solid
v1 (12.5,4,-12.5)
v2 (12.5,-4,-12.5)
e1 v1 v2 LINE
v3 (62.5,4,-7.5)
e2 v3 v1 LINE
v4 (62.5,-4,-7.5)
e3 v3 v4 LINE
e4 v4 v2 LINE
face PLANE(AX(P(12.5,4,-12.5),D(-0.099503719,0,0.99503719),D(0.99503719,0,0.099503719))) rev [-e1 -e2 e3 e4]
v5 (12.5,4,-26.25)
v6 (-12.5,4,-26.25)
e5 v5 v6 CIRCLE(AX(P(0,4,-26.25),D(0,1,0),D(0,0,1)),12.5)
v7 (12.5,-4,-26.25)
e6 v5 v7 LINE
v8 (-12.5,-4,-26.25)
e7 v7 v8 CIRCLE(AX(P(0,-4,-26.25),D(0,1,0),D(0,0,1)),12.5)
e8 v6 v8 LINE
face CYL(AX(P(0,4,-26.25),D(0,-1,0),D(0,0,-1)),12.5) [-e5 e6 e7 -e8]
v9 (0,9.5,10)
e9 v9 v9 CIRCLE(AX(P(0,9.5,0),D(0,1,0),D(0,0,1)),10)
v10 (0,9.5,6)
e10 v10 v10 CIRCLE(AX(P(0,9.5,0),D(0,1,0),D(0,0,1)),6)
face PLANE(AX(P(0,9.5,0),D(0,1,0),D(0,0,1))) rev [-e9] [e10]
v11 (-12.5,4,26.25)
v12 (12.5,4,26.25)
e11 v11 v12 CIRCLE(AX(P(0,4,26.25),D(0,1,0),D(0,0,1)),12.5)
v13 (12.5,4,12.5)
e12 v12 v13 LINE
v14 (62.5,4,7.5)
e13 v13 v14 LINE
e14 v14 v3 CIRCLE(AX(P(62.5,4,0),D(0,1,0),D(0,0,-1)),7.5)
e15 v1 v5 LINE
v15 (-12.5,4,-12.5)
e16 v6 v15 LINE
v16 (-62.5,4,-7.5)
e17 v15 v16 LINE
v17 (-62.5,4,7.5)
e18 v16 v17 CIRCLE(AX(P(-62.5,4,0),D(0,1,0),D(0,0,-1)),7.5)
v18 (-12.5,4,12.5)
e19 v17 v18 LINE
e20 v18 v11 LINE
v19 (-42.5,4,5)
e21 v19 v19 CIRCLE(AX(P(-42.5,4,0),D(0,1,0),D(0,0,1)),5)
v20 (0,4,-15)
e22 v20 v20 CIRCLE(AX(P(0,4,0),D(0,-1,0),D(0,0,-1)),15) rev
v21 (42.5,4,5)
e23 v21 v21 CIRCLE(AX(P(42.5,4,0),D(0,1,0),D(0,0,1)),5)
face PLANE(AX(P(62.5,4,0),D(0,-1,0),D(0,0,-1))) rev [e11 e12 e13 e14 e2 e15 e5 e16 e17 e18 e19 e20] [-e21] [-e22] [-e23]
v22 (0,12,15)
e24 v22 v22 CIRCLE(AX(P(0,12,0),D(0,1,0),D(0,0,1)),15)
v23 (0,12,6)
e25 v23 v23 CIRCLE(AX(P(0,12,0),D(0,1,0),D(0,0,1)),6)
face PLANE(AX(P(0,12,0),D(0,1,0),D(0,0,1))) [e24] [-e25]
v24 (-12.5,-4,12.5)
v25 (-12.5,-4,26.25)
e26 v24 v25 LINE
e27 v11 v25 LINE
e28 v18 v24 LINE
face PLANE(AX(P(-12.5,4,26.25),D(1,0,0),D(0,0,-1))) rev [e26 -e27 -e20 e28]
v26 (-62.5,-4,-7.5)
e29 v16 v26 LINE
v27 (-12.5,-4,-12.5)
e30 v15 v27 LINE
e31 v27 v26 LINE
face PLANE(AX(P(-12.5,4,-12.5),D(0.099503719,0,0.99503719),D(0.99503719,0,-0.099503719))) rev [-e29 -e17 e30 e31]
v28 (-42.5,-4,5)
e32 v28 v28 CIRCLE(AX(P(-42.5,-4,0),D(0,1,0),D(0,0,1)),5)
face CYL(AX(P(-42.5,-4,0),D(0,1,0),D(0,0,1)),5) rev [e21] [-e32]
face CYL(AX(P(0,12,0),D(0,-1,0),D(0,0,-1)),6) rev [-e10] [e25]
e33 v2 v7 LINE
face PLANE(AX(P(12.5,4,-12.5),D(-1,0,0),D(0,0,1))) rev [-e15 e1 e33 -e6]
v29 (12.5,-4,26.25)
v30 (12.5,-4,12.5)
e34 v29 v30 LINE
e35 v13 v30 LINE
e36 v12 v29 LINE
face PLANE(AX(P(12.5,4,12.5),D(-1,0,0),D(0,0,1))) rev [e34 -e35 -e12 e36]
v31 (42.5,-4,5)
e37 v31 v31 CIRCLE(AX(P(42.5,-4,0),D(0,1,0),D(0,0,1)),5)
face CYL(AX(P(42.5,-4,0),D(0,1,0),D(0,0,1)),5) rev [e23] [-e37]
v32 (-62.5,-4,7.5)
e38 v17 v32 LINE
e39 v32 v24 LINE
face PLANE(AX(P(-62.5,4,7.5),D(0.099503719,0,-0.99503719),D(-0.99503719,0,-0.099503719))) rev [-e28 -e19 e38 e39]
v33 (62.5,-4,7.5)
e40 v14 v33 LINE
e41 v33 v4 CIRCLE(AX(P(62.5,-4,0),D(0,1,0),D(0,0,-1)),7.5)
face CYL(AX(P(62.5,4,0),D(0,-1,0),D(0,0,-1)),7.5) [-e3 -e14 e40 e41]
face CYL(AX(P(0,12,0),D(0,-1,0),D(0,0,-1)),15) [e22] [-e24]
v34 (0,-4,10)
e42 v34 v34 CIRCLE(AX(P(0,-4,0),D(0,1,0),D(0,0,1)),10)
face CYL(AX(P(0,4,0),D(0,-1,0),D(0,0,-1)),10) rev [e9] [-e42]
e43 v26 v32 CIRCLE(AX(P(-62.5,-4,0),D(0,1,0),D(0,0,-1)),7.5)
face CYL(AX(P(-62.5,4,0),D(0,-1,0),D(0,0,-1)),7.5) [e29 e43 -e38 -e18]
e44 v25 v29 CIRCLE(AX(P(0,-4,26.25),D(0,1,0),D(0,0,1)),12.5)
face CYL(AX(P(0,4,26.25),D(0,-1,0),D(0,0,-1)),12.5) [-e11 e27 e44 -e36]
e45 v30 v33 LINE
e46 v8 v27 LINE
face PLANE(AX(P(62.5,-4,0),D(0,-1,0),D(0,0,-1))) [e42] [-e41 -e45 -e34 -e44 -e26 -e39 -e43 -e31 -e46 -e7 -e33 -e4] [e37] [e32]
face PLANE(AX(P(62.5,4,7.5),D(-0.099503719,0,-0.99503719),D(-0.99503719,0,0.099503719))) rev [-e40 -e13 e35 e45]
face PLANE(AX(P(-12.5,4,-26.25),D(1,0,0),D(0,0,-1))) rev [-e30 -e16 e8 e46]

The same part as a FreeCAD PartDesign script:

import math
import FreeCAD as App
import Part
import Sketcher

doc = App.newDocument("Part")
params = doc.addObject("Spreadsheet::Sheet", "Params")
for row, (alias, value) in enumerate([
    ("sketch1_diameter", "20 mm"),
    ("sketch1_radius", "12.5 mm"),
    ("sketch1_radius2", "7.5 mm"),
    ("sketch1_height", "13.75 mm"),
    ("pad1_length", "8 mm"),
    ("sketch2_diameter", "30 mm"),
    ("sketch2_diameter2", "20 mm"),
    ("pad2_length", "8 mm"),
    ("sketch3_diameter", "10 mm"),
    ("sketch4_diameter", "20 mm"),
    ("sketch4_diameter2", "12 mm"),
    ("pad3_length", "2.5 mm"),
], start=1):
    params.set(f"A{row}", alias)
    params.set(f"B{row}", "=" + value)
    params.setAlias(f"B{row}", alias)

body = doc.addObject("PartDesign::Body", "Body")

# Sketch on XZ plane
sketch1 = doc.addObject("Sketcher::SketchObject", "Sketch")
body.addObject(sketch1)
sketch1.AttachmentSupport = (doc.XZ_Plane, [""])
sketch1.MapMode = "FlatFace"
sketch1.addGeometry(Part.LineSegment(App.Vector(12, -12, 0), App.Vector(12, -26, 0)), False)
sketch1.addGeometry(Part.ArcOfCircle(Part.Circle(App.Vector(0, -26, 0), App.Vector(0, 0, 1), 12), math.radians(180), math.radians(360)), False)
sketch1.addGeometry(Part.LineSegment(App.Vector(-12, -26, 0), App.Vector(-12, -12, 0)), False)
sketch1.addGeometry(Part.LineSegment(App.Vector(-12, -12, 0), App.Vector(-62, -8, 0)), False)
sketch1.addGeometry(Part.ArcOfCircle(Part.Circle(App.Vector(-62, 0, 0), App.Vector(0, 0, 1), 8), math.radians(90), math.radians(270)), False)
sketch1.addGeometry(Part.LineSegment(App.Vector(-62, 8, 0), App.Vector(-12, 12, 0)), False)
sketch1.addGeometry(Part.LineSegment(App.Vector(-12, 12, 0), App.Vector(-12, 26, 0)), False)
sketch1.addGeometry(Part.ArcOfCircle(Part.Circle(App.Vector(0, 26, 0), App.Vector(0, 0, 1), 12), math.radians(0), math.radians(180)), False)
sketch1.addGeometry(Part.LineSegment(App.Vector(12, 26, 0), App.Vector(12, 12, 0)), False)
sketch1.addGeometry(Part.LineSegment(App.Vector(12, 12, 0), App.Vector(62, 8, 0)), False)
sketch1.addGeometry(Part.ArcOfCircle(Part.Circle(App.Vector(62, 0, 0), App.Vector(0, 0, 1), 8), math.radians(-90), math.radians(90)), False)
sketch1.addGeometry(Part.LineSegment(App.Vector(62, -8, 0), App.Vector(12, -12, 0)), False)
sketch1.addGeometry(Part.Circle(App.Vector(0, 0, 0), App.Vector(0, 0, 1), 10), False)
sketch1.addConstraint(Sketcher.Constraint("Tangent", 0, 2, 1, 2))
sketch1.addConstraint(Sketcher.Constraint("Tangent", 1, 1, 2, 1))
sketch1.addConstraint(Sketcher.Constraint("Coincident", 2, 2, 3, 1))
sketch1.addConstraint(Sketcher.Constraint("Coincident", 3, 2, 4, 2))
sketch1.addConstraint(Sketcher.Constraint("Coincident", 4, 1, 5, 1))
sketch1.addConstraint(Sketcher.Constraint("Coincident", 5, 2, 6, 1))
sketch1.addConstraint(Sketcher.Constraint("Tangent", 6, 2, 7, 2))
sketch1.addConstraint(Sketcher.Constraint("Tangent", 7, 1, 8, 1))
sketch1.addConstraint(Sketcher.Constraint("Coincident", 8, 2, 9, 1))
sketch1.addConstraint(Sketcher.Constraint("Coincident", 9, 2, 10, 2))
sketch1.addConstraint(Sketcher.Constraint("Coincident", 10, 1, 11, 1))
sketch1.addConstraint(Sketcher.Constraint("Coincident", 11, 2, 0, 1))
sketch1.addConstraint(Sketcher.Constraint("Vertical", 0))
sketch1.addConstraint(Sketcher.Constraint("Vertical", 2))
sketch1.addConstraint(Sketcher.Constraint("Vertical", 6))
sketch1.addConstraint(Sketcher.Constraint("Vertical", 8))
sketch1.addConstraint(Sketcher.Constraint("Coincident", 12, 3, -1, 1))
sketch1.addConstraint(Sketcher.Constraint("Equal", 1, 7))
sketch1.addConstraint(Sketcher.Constraint("Equal", 4, 10))
sketch1.addConstraint(Sketcher.Constraint("Symmetric", 1, 3, 7, 3, -1, 1))
sketch1.addConstraint(Sketcher.Constraint("Symmetric", 4, 3, 10, 3, -1, 1))
sketch1.addConstraint(Sketcher.Constraint("Symmetric", 5, 2, 8, 2, -2))
sketch1.addConstraint(Sketcher.Constraint("Symmetric", 4, 1, 9, 2, -2))
sketch1.addConstraint(Sketcher.Constraint("Parallel", 3, 9))
sketch1.addConstraint(Sketcher.Constraint("Parallel", 5, 11))
sketch1.addConstraint(Sketcher.Constraint("Horizontal", 2, 2, 11, 2))
sketch1.addConstraint(Sketcher.Constraint("Vertical", 4, 3, 3, 2))
sketch1.addConstraint(Sketcher.Constraint("Vertical", 3, 2, 4, 1))
sketch1.addConstraint(Sketcher.Constraint("Diameter", 12, 20.0))
sketch1.addConstraint(Sketcher.Constraint("Radius", 1, 12.5))
sketch1.addConstraint(Sketcher.Constraint("Radius", 4, 7.5))
sketch1.addConstraint(Sketcher.Constraint("DistanceX", 4, 3, 10, 3, 125.0))
sketch1.addConstraint(Sketcher.Constraint("DistanceY", 2, 2, 3, 2, 5.0))
sketch1.addConstraint(Sketcher.Constraint("DistanceY", 0, 2, 0, 1, 13.75))
sketch1.setExpression("Constraints[28]", "Params.sketch1_diameter")
sketch1.setExpression("Constraints[29]", "Params.sketch1_radius")
sketch1.setExpression("Constraints[30]", "Params.sketch1_radius2")
sketch1.setExpression("Constraints[33]", "Params.sketch1_height")
pad1 = doc.addObject("PartDesign::Pad", "Pad")
body.addObject(pad1)
pad1.Profile = sketch1
pad1.setExpression("Length", "Params.pad1_length")
pad1.Midplane = True

# Sketch on XZ plane
sketch2 = doc.addObject("Sketcher::SketchObject", "Sketch001")
body.addObject(sketch2)
sketch2.AttachmentSupport = (doc.XZ_Plane, [""])
sketch2.MapMode = "FlatFace"
sketch2.AttachmentOffset = App.Placement(App.Vector(0, 0, -4), App.Rotation())
sketch2.addGeometry(Part.Circle(App.Vector(0, 0, 0), App.Vector(0, 0, 1), 15), False)
sketch2.addGeometry(Part.Circle(App.Vector(0, 0, 0), App.Vector(0, 0, 1), 10), False)
sketch2.addConstraint(Sketcher.Constraint("Coincident", 0, 3, -1, 1))
sketch2.addConstraint(Sketcher.Constraint("Coincident", 1, 3, -1, 1))
sketch2.addConstraint(Sketcher.Constraint("Diameter", 0, 30.0))
sketch2.addConstraint(Sketcher.Constraint("Diameter", 1, 20.0))
sketch2.setExpression("Constraints[2]", "Params.sketch2_diameter")
sketch2.setExpression("Constraints[3]", "Params.sketch2_diameter2")
pad2 = doc.addObject("PartDesign::Pad", "Pad001")
body.addObject(pad2)
pad2.Profile = sketch2
pad2.setExpression("Length", "Params.pad2_length")
pad2.Reversed = True

# Sketch on XZ plane
sketch3 = doc.addObject("Sketcher::SketchObject", "Sketch002")
body.addObject(sketch3)
sketch3.AttachmentSupport = (doc.XZ_Plane, [""])
sketch3.MapMode = "FlatFace"
sketch3.AttachmentOffset = App.Placement(App.Vector(0, 0, -4), App.Rotation())
sketch3.addGeometry(Part.Circle(App.Vector(42, 0, 0), App.Vector(0, 0, 1), 5), False)
sketch3.addGeometry(Part.Circle(App.Vector(-42, 0, 0), App.Vector(0, 0, 1), 5), False)
sketch3.addConstraint(Sketcher.Constraint("Equal", 0, 1))
sketch3.addConstraint(Sketcher.Constraint("Symmetric", 0, 3, 1, 3, -1, 1))
sketch3.addConstraint(Sketcher.Constraint("PointOnObject", 0, 3, -1))
sketch3.addConstraint(Sketcher.Constraint("Diameter", 0, 10.0))
sketch3.addConstraint(Sketcher.Constraint("DistanceX", 1, 3, 0, 3, 85.0))
sketch3.setExpression("Constraints[3]", "Params.sketch3_diameter")
pocket1 = doc.addObject("PartDesign::Pocket", "Pocket")
body.addObject(pocket1)
pocket1.Profile = sketch3
pocket1.Type = "ThroughAll"
pocket1.Reversed = True

# Sketch on XZ plane
sketch4 = doc.addObject("Sketcher::SketchObject", "Sketch003")
body.addObject(sketch4)
sketch4.AttachmentSupport = (doc.XZ_Plane, [""])
sketch4.MapMode = "FlatFace"
sketch4.AttachmentOffset = App.Placement(App.Vector(0, 0, -9.5), App.Rotation())
sketch4.addGeometry(Part.Circle(App.Vector(0, 0, 0), App.Vector(0, 0, 1), 10), False)
sketch4.addGeometry(Part.Circle(App.Vector(0, 0, 0), App.Vector(0, 0, 1), 6), False)
sketch4.addConstraint(Sketcher.Constraint("Coincident", 0, 3, -1, 1))
sketch4.addConstraint(Sketcher.Constraint("Coincident", 1, 3, -1, 1))
sketch4.addConstraint(Sketcher.Constraint("Diameter", 0, 20.0))
sketch4.addConstraint(Sketcher.Constraint("Diameter", 1, 12.0))
sketch4.setExpression("Constraints[2]", "Params.sketch4_diameter")
sketch4.setExpression("Constraints[3]", "Params.sketch4_diameter2")
pad3 = doc.addObject("PartDesign::Pad", "Pad002")
body.addObject(pad3)
pad3.Profile = sketch4
pad3.setExpression("Length", "Params.pad3_length")
pad3.Reversed = True

doc.recompute()
